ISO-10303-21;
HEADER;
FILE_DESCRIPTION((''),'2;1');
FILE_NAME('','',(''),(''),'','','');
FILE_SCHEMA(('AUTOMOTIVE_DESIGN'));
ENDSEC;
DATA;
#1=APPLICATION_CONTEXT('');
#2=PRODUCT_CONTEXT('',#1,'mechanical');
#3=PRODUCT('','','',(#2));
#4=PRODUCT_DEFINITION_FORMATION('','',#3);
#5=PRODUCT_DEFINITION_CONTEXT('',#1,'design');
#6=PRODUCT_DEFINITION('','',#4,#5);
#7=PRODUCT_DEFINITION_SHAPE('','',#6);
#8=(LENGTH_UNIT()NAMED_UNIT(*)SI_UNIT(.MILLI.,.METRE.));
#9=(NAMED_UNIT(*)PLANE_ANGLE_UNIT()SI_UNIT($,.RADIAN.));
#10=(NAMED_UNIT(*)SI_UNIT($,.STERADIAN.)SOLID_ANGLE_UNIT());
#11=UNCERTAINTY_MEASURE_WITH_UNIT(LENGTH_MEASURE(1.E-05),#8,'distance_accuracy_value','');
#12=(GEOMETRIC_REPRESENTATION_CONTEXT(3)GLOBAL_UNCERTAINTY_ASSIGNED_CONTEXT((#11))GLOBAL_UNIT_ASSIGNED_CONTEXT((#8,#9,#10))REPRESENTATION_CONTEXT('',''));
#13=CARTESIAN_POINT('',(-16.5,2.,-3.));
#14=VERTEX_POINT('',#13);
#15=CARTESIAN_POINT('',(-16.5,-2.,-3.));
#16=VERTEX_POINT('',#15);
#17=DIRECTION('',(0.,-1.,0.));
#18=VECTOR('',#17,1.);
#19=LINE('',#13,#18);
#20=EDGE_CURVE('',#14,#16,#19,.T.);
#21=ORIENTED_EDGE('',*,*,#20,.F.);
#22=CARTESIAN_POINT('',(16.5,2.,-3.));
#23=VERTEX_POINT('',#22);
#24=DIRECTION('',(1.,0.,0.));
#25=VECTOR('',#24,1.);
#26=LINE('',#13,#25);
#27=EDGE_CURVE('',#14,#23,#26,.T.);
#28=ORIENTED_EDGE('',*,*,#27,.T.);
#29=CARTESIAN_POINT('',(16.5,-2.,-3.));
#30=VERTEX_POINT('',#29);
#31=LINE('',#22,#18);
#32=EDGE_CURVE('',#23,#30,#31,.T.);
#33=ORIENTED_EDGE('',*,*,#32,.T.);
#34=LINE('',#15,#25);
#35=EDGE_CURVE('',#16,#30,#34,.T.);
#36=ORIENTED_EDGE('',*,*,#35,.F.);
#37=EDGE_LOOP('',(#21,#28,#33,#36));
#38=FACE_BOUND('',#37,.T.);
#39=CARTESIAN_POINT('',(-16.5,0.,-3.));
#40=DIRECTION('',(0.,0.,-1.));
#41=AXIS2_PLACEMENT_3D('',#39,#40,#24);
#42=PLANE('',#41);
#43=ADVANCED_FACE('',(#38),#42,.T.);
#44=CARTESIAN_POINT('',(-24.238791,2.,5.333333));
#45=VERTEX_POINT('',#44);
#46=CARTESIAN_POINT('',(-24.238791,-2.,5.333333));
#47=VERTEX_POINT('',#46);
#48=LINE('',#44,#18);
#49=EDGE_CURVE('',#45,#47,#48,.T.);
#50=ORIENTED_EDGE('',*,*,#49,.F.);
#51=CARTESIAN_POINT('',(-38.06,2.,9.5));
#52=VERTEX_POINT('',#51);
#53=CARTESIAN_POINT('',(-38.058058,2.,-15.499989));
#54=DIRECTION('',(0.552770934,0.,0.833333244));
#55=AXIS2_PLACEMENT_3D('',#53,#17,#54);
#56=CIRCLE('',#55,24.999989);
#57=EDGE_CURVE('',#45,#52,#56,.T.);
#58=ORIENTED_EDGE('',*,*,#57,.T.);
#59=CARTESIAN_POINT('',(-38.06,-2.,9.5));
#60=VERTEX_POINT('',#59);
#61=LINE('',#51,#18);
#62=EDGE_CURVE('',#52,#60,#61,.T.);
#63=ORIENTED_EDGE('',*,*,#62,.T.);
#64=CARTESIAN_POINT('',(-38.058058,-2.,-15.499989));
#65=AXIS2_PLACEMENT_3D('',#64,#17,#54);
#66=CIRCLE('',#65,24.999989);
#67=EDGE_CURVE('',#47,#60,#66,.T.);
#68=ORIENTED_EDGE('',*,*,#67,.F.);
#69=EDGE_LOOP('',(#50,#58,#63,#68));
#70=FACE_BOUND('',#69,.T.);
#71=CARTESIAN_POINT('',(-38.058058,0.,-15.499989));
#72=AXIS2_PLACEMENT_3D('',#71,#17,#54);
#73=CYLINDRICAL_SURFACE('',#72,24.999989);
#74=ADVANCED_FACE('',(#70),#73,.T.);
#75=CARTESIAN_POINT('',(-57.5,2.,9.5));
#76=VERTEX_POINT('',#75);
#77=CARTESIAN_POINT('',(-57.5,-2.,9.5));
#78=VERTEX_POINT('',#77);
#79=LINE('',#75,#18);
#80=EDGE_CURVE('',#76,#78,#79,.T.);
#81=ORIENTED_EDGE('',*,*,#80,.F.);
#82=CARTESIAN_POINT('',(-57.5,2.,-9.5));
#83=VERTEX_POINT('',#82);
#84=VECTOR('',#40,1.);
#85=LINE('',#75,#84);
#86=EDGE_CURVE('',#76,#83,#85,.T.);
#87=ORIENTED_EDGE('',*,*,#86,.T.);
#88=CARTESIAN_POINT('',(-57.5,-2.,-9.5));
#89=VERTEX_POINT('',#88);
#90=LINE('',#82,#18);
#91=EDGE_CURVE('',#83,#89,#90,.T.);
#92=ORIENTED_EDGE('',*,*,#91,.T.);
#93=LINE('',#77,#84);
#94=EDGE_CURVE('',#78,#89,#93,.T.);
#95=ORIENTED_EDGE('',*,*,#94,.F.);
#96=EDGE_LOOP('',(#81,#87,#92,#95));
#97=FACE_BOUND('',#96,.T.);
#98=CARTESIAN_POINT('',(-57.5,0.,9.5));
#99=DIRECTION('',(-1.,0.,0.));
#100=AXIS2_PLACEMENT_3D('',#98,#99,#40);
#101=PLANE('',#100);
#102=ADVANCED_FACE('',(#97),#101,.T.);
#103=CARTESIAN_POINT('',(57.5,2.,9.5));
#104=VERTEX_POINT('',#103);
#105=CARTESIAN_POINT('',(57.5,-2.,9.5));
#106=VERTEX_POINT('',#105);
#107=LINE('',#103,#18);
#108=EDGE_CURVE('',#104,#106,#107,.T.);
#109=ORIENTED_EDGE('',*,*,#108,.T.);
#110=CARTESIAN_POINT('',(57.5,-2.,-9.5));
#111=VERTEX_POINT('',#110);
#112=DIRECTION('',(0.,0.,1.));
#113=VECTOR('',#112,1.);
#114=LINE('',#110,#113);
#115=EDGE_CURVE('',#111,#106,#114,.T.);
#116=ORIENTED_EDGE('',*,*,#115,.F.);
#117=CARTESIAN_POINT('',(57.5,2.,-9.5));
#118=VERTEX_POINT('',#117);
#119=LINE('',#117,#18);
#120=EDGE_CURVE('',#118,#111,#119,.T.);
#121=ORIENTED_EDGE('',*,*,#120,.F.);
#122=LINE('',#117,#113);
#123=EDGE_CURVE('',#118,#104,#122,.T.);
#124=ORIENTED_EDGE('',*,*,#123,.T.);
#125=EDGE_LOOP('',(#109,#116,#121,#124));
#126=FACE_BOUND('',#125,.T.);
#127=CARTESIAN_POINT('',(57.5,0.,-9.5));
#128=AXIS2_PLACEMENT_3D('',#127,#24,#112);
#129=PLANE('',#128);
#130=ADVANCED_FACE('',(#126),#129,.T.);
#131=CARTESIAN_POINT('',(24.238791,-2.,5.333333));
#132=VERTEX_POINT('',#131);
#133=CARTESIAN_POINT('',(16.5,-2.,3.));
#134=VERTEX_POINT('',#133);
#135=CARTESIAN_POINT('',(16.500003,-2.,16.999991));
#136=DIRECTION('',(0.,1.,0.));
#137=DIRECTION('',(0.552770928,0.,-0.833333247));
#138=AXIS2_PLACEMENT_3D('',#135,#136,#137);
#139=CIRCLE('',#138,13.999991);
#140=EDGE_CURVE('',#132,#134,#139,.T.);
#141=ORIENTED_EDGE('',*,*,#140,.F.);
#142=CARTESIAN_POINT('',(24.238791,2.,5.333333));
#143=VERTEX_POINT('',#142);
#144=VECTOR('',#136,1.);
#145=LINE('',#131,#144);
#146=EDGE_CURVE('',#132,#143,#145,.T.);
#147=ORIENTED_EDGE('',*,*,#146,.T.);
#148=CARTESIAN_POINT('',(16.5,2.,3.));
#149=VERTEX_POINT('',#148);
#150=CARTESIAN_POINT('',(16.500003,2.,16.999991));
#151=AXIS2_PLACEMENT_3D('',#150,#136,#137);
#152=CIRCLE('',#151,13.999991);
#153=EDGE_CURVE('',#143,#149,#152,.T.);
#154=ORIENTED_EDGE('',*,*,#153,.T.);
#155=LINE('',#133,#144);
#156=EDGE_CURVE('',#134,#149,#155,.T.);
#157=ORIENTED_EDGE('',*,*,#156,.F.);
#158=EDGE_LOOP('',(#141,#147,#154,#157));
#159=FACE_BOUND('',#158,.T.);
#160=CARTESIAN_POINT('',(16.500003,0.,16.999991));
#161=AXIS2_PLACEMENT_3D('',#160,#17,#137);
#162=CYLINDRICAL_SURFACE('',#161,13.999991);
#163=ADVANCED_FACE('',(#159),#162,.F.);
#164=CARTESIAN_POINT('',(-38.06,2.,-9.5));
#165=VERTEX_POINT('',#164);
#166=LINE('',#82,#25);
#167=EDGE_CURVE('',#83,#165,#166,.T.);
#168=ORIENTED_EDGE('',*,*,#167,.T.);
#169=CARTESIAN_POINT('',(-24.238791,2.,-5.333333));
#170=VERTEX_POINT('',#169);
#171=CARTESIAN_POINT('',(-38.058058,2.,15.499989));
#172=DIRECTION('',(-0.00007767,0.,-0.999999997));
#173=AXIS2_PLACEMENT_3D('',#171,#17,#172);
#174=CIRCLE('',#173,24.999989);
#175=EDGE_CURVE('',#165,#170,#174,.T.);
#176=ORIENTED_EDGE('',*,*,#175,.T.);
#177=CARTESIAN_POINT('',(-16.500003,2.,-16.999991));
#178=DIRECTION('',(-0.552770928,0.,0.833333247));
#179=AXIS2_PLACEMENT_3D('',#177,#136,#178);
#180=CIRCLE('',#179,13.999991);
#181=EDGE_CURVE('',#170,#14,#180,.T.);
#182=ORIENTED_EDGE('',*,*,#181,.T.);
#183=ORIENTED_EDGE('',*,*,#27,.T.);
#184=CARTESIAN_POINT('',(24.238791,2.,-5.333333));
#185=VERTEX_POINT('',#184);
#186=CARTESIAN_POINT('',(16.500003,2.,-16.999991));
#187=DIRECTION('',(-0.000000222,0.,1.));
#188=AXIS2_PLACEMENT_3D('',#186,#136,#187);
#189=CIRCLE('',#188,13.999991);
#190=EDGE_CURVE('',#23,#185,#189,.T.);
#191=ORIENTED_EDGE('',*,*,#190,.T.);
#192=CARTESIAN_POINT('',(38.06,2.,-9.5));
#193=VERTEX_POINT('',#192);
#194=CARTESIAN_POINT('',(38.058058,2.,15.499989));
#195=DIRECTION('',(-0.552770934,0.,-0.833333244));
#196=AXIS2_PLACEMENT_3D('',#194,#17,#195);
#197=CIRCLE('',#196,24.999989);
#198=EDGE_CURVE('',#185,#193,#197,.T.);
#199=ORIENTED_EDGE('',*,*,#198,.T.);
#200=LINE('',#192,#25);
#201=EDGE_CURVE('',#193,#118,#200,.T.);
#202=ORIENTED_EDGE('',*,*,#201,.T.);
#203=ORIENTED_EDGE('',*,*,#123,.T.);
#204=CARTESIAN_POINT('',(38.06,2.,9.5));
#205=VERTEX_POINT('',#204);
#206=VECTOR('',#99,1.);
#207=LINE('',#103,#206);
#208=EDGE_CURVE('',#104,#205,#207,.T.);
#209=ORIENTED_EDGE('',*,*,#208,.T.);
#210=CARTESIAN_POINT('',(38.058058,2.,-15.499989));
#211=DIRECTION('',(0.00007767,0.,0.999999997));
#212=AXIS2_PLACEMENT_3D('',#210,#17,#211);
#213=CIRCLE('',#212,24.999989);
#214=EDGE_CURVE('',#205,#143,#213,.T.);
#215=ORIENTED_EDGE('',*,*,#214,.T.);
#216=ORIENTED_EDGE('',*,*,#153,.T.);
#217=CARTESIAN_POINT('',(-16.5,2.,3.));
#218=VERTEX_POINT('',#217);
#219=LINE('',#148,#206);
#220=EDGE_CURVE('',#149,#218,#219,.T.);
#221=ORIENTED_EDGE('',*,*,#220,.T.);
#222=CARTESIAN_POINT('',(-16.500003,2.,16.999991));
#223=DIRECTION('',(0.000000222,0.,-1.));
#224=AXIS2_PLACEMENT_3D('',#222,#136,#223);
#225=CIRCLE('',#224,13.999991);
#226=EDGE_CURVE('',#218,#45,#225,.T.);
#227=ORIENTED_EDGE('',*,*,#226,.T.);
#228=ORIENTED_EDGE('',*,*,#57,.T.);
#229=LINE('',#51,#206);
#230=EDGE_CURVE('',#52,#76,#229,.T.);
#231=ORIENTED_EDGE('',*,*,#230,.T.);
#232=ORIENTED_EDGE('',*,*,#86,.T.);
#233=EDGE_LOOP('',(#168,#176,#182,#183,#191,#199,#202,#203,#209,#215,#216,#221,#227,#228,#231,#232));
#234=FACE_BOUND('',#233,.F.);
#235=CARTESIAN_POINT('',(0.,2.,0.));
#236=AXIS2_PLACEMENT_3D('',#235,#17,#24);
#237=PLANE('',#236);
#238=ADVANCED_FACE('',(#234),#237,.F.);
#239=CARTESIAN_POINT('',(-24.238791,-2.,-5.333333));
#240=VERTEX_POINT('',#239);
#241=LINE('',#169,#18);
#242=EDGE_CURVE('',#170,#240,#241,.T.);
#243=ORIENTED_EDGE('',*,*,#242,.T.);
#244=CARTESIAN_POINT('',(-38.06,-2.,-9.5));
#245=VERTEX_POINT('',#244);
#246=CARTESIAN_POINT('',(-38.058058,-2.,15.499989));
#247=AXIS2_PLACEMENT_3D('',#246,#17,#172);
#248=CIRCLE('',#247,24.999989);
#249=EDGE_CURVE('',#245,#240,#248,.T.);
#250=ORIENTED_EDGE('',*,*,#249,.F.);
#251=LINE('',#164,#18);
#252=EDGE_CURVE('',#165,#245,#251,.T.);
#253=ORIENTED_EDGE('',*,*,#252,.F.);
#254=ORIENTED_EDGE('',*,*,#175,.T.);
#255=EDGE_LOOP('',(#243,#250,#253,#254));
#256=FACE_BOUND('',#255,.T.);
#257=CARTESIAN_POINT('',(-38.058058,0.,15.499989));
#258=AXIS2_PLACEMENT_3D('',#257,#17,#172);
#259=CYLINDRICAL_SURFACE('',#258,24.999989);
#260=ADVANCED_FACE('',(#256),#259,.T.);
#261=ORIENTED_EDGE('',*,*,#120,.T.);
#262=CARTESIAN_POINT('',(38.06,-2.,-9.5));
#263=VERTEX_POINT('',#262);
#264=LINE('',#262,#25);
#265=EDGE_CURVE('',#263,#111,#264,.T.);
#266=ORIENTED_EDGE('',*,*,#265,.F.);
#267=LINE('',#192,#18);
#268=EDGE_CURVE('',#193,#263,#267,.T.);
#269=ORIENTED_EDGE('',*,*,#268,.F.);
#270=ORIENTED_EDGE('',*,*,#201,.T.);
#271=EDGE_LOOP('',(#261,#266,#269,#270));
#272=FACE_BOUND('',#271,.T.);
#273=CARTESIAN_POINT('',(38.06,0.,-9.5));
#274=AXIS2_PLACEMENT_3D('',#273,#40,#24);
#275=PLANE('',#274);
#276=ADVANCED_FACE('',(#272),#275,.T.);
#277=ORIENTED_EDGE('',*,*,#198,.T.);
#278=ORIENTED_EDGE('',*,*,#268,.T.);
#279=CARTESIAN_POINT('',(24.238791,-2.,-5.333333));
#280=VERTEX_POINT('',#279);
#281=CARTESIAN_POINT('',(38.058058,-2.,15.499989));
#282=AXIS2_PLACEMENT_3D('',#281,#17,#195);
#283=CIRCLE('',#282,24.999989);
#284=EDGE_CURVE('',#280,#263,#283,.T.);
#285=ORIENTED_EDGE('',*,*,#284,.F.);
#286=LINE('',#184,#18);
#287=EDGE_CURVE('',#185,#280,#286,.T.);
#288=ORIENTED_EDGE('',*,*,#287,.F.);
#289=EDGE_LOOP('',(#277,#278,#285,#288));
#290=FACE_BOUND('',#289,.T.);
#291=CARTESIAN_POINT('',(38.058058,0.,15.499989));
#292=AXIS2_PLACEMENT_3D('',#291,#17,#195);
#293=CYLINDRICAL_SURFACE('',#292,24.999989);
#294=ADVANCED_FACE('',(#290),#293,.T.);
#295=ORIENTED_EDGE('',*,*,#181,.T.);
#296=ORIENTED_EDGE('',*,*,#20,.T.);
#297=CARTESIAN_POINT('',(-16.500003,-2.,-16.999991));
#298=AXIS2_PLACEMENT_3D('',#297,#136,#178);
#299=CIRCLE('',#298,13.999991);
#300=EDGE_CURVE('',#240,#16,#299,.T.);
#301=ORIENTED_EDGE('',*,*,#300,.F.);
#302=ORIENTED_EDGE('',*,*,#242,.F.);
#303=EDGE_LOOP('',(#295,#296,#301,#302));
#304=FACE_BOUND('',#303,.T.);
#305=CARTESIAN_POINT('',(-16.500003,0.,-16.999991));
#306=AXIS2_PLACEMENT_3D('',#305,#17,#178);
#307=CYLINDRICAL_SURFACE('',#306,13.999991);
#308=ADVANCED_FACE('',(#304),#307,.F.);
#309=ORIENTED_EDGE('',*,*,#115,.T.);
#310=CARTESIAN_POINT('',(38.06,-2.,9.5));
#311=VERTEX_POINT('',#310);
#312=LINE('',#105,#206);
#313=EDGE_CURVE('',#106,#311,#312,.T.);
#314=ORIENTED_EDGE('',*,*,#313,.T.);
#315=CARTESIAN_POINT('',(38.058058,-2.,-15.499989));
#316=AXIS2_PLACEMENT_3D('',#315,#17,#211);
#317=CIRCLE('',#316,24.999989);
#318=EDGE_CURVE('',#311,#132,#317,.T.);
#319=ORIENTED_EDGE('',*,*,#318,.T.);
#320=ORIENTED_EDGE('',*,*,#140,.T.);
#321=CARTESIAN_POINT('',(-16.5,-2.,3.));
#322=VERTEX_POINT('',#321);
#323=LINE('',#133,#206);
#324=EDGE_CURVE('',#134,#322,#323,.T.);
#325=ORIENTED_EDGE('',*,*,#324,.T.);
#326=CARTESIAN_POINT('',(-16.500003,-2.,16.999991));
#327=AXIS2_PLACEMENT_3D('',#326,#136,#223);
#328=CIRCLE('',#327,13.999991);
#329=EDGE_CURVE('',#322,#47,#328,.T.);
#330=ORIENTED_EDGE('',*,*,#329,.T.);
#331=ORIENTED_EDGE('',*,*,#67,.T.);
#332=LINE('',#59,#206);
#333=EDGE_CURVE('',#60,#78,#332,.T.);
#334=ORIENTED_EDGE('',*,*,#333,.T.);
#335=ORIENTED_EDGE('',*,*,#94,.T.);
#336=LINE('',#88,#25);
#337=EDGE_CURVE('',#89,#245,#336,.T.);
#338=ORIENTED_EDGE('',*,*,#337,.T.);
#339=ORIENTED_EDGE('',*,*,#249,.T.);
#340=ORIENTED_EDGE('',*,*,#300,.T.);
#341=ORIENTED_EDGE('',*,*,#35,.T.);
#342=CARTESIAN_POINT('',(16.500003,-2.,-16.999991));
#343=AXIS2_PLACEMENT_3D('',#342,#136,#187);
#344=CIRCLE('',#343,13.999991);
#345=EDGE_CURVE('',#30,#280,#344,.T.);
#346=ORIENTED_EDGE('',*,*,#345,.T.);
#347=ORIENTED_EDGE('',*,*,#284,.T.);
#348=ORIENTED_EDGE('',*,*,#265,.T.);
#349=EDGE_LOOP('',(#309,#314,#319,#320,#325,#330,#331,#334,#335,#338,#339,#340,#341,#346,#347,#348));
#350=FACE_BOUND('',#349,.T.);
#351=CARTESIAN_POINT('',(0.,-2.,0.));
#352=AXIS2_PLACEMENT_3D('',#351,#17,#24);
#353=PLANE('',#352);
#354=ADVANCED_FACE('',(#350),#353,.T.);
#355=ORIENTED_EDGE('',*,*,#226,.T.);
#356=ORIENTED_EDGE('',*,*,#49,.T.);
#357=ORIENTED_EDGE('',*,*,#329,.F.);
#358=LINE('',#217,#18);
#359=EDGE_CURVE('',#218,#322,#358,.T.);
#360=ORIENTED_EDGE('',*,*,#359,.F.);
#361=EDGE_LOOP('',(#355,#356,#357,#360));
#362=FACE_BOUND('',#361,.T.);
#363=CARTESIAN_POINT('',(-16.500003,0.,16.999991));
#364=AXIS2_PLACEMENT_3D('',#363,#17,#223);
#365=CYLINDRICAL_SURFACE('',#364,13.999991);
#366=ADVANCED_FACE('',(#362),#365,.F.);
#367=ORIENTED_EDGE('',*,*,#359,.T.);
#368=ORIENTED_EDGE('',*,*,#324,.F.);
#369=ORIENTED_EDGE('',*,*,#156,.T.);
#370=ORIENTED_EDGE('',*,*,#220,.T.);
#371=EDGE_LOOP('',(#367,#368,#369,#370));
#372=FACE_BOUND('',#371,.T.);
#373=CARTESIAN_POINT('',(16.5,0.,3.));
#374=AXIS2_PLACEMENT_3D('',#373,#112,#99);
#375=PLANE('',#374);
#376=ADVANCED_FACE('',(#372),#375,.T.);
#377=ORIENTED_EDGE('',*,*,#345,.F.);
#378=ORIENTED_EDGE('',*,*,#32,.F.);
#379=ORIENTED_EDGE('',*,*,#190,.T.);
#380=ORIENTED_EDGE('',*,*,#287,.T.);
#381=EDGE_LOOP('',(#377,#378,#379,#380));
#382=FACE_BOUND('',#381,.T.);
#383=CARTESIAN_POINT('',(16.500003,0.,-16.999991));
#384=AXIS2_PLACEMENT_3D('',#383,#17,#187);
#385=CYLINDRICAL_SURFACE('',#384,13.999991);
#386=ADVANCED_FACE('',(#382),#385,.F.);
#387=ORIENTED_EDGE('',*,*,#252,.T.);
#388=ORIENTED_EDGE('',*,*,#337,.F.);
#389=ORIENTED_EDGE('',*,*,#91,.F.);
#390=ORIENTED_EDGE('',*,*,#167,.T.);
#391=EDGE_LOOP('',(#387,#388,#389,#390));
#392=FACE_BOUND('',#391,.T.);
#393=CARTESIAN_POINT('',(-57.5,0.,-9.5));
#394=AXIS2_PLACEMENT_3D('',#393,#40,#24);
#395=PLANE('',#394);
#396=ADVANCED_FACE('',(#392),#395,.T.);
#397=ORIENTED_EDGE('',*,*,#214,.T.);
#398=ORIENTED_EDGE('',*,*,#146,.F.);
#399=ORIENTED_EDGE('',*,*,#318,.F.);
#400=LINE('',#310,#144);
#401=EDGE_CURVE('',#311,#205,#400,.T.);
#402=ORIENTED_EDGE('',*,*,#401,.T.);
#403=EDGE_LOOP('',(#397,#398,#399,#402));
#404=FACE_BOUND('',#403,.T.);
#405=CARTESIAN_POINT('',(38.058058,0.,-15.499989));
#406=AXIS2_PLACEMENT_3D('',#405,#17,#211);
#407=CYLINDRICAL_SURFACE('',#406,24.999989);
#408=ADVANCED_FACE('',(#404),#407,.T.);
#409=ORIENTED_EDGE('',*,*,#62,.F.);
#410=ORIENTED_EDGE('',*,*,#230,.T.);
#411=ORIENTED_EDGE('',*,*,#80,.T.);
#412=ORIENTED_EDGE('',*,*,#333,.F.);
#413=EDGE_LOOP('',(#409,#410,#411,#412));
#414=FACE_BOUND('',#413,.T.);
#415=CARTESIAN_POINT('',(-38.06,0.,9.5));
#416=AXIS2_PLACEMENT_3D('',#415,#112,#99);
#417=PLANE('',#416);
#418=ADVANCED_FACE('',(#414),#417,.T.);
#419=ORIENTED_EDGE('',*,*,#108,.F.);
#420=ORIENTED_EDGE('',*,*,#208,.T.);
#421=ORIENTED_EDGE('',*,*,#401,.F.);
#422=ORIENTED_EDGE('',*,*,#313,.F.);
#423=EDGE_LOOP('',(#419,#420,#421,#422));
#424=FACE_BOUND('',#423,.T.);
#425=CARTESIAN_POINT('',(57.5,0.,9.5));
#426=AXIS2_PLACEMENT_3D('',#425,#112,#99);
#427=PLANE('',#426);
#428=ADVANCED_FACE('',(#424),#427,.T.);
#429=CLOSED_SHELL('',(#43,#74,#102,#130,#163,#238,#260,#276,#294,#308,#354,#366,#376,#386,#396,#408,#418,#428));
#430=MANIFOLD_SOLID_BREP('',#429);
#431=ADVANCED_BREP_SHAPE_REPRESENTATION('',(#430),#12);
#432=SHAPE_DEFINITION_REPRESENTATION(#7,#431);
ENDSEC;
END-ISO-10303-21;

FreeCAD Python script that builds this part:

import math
import FreeCAD as App
import Part
import Sketcher

doc = App.newDocument("Part")
body = doc.addObject("PartDesign::Body", "Body")

# Sketch on XZ plane
sketch1 = body.newObject("Sketcher::SketchObject", "Sketch")
sketch1.AttachmentSupport = (doc.getObject("XZ_Plane"), [""])
sketch1.MapMode = "FlatFace"
sketch1.addGeometry([
    Part.LineSegment(App.Vector(16, 3, 0), App.Vector(-16, 3, 0)),  # 0
    Part.ArcOfCircle(Part.Circle(App.Vector(-17, 17, 0), App.Vector(0, 0, 1), 14), math.radians(-124), math.radians(-90)),  # 1
    Part.ArcOfCircle(Part.Circle(App.Vector(-38, -15, 0), App.Vector(0, 0, 1), 25), math.radians(56), math.radians(90)),  # 2
    Part.LineSegment(App.Vector(-38, 10, 0), App.Vector(-58, 10, 0)),  # 3
    Part.LineSegment(App.Vector(-58, 10, 0), App.Vector(-58, -10, 0)),  # 4
    Part.LineSegment(App.Vector(-58, -10, 0), App.Vector(-38, -10, 0)),  # 5
    Part.ArcOfCircle(Part.Circle(App.Vector(-38, 15, 0), App.Vector(0, 0, 1), 25), math.radians(-90), math.radians(-56)),  # 6
    Part.ArcOfCircle(Part.Circle(App.Vector(-17, -17, 0), App.Vector(0, 0, 1), 14), math.radians(90), math.radians(124)),  # 7
    Part.LineSegment(App.Vector(-16, -3, 0), App.Vector(16, -3, 0)),  # 8
    Part.ArcOfCircle(Part.Circle(App.Vector(17, -17, 0), App.Vector(0, 0, 1), 14), math.radians(56), math.radians(90)),  # 9
    Part.ArcOfCircle(Part.Circle(App.Vector(38, 15, 0), App.Vector(0, 0, 1), 25), math.radians(-124), math.radians(-90)),  # 10
    Part.LineSegment(App.Vector(38, -10, 0), App.Vector(58, -10, 0)),  # 11
    Part.LineSegment(App.Vector(58, -10, 0), App.Vector(58, 10, 0)),  # 12
    Part.LineSegment(App.Vector(58, 10, 0), App.Vector(38, 10, 0)),  # 13
    Part.ArcOfCircle(Part.Circle(App.Vector(38, -15, 0), App.Vector(0, 0, 1), 25), math.radians(90), math.radians(124)),  # 14
    Part.ArcOfCircle(Part.Circle(App.Vector(17, 17, 0), App.Vector(0, 0, 1), 14), math.radians(-90), math.radians(-56)),  # 15
], False)
sketch1.addConstraint([
    Sketcher.Constraint("Tangent", 0, 2, 1, 2),
    Sketcher.Constraint("Tangent", 1, 1, 2, 1),
    Sketcher.Constraint("Coincident", 2, 2, 3, 1),
    Sketcher.Constraint("Coincident", 3, 2, 4, 1),
    Sketcher.Constraint("Coincident", 4, 2, 5, 1),
    Sketcher.Constraint("Coincident", 5, 2, 6, 1),
    Sketcher.Constraint("Tangent", 6, 2, 7, 2),
    Sketcher.Constraint("Tangent", 7, 1, 8, 1),
    Sketcher.Constraint("Tangent", 8, 2, 9, 2),
    Sketcher.Constraint("Tangent", 9, 1, 10, 1),
    Sketcher.Constraint("Coincident", 10, 2, 11, 1),
    Sketcher.Constraint("Coincident", 11, 2, 12, 1),
    Sketcher.Constraint("Coincident", 12, 2, 13, 1),
    Sketcher.Constraint("Coincident", 13, 2, 14, 1),
    Sketcher.Constraint("Tangent", 14, 2, 15, 2),
    Sketcher.Constraint("Tangent", 15, 1, 0, 1),
    Sketcher.Constraint("Horizontal", 0),
    Sketcher.Constraint("Horizontal", 3),
    Sketcher.Constraint("Vertical", 4),
    Sketcher.Constraint("Horizontal", 5),
    Sketcher.Constraint("Horizontal", 8),
    Sketcher.Constraint("Horizontal", 11),
    Sketcher.Constraint("Vertical", 12),
    Sketcher.Constraint("Horizontal", 13),
    Sketcher.Constraint("Equal", 2, 6),
    Sketcher.Constraint("Equal", 1, 7),
    Sketcher.Constraint("Equal", 7, 9),
    Sketcher.Constraint("Equal", 6, 10),
    Sketcher.Constraint("Equal", 10, 14),
    Sketcher.Constraint("Equal", 9, 15),
    Sketcher.Constraint("Symmetric", 1, 3, 9, 3, -1, 1),
    Sketcher.Constraint("Symmetric", 6, 3, 14, 3, -1, 1),
    Sketcher.Constraint("Symmetric", 2, 2, 10, 2, -1, 1),
    Sketcher.Constraint("Symmetric", 6, 3, 10, 3, -2),
    Sketcher.Constraint("Vertical", 2, 2, 5, 2),
    Sketcher.Constraint("Vertical", 10, 2, 13, 2),
    Sketcher.Constraint("Equal", 5, 11),
    Sketcher.Constraint("DistanceX", 0, 2, 0, 1, 33.0),
    Sketcher.Constraint("DistanceY", 4, 2, 4, 1, 19.0),
    Sketcher.Constraint("DistanceY", -1, 1, 0, 2, 3.0),
    Sketcher.Constraint("DistanceX", 3, 2, 0, 2, 41.0),
    Sketcher.Constraint("DistanceX", 3, 2, 3, 1, 19.44),
    Sketcher.Constraint("DistanceY", 6, 3, 1, 3, 1.500002),
    Sketcher.Constraint("Radius", 1, 13.999991),
])
pad1 = body.newObject("PartDesign::Pad", "Pad")
pad1.Profile = sketch1
pad1.Length = 4
pad1.Midplane = True

doc.recompute()
